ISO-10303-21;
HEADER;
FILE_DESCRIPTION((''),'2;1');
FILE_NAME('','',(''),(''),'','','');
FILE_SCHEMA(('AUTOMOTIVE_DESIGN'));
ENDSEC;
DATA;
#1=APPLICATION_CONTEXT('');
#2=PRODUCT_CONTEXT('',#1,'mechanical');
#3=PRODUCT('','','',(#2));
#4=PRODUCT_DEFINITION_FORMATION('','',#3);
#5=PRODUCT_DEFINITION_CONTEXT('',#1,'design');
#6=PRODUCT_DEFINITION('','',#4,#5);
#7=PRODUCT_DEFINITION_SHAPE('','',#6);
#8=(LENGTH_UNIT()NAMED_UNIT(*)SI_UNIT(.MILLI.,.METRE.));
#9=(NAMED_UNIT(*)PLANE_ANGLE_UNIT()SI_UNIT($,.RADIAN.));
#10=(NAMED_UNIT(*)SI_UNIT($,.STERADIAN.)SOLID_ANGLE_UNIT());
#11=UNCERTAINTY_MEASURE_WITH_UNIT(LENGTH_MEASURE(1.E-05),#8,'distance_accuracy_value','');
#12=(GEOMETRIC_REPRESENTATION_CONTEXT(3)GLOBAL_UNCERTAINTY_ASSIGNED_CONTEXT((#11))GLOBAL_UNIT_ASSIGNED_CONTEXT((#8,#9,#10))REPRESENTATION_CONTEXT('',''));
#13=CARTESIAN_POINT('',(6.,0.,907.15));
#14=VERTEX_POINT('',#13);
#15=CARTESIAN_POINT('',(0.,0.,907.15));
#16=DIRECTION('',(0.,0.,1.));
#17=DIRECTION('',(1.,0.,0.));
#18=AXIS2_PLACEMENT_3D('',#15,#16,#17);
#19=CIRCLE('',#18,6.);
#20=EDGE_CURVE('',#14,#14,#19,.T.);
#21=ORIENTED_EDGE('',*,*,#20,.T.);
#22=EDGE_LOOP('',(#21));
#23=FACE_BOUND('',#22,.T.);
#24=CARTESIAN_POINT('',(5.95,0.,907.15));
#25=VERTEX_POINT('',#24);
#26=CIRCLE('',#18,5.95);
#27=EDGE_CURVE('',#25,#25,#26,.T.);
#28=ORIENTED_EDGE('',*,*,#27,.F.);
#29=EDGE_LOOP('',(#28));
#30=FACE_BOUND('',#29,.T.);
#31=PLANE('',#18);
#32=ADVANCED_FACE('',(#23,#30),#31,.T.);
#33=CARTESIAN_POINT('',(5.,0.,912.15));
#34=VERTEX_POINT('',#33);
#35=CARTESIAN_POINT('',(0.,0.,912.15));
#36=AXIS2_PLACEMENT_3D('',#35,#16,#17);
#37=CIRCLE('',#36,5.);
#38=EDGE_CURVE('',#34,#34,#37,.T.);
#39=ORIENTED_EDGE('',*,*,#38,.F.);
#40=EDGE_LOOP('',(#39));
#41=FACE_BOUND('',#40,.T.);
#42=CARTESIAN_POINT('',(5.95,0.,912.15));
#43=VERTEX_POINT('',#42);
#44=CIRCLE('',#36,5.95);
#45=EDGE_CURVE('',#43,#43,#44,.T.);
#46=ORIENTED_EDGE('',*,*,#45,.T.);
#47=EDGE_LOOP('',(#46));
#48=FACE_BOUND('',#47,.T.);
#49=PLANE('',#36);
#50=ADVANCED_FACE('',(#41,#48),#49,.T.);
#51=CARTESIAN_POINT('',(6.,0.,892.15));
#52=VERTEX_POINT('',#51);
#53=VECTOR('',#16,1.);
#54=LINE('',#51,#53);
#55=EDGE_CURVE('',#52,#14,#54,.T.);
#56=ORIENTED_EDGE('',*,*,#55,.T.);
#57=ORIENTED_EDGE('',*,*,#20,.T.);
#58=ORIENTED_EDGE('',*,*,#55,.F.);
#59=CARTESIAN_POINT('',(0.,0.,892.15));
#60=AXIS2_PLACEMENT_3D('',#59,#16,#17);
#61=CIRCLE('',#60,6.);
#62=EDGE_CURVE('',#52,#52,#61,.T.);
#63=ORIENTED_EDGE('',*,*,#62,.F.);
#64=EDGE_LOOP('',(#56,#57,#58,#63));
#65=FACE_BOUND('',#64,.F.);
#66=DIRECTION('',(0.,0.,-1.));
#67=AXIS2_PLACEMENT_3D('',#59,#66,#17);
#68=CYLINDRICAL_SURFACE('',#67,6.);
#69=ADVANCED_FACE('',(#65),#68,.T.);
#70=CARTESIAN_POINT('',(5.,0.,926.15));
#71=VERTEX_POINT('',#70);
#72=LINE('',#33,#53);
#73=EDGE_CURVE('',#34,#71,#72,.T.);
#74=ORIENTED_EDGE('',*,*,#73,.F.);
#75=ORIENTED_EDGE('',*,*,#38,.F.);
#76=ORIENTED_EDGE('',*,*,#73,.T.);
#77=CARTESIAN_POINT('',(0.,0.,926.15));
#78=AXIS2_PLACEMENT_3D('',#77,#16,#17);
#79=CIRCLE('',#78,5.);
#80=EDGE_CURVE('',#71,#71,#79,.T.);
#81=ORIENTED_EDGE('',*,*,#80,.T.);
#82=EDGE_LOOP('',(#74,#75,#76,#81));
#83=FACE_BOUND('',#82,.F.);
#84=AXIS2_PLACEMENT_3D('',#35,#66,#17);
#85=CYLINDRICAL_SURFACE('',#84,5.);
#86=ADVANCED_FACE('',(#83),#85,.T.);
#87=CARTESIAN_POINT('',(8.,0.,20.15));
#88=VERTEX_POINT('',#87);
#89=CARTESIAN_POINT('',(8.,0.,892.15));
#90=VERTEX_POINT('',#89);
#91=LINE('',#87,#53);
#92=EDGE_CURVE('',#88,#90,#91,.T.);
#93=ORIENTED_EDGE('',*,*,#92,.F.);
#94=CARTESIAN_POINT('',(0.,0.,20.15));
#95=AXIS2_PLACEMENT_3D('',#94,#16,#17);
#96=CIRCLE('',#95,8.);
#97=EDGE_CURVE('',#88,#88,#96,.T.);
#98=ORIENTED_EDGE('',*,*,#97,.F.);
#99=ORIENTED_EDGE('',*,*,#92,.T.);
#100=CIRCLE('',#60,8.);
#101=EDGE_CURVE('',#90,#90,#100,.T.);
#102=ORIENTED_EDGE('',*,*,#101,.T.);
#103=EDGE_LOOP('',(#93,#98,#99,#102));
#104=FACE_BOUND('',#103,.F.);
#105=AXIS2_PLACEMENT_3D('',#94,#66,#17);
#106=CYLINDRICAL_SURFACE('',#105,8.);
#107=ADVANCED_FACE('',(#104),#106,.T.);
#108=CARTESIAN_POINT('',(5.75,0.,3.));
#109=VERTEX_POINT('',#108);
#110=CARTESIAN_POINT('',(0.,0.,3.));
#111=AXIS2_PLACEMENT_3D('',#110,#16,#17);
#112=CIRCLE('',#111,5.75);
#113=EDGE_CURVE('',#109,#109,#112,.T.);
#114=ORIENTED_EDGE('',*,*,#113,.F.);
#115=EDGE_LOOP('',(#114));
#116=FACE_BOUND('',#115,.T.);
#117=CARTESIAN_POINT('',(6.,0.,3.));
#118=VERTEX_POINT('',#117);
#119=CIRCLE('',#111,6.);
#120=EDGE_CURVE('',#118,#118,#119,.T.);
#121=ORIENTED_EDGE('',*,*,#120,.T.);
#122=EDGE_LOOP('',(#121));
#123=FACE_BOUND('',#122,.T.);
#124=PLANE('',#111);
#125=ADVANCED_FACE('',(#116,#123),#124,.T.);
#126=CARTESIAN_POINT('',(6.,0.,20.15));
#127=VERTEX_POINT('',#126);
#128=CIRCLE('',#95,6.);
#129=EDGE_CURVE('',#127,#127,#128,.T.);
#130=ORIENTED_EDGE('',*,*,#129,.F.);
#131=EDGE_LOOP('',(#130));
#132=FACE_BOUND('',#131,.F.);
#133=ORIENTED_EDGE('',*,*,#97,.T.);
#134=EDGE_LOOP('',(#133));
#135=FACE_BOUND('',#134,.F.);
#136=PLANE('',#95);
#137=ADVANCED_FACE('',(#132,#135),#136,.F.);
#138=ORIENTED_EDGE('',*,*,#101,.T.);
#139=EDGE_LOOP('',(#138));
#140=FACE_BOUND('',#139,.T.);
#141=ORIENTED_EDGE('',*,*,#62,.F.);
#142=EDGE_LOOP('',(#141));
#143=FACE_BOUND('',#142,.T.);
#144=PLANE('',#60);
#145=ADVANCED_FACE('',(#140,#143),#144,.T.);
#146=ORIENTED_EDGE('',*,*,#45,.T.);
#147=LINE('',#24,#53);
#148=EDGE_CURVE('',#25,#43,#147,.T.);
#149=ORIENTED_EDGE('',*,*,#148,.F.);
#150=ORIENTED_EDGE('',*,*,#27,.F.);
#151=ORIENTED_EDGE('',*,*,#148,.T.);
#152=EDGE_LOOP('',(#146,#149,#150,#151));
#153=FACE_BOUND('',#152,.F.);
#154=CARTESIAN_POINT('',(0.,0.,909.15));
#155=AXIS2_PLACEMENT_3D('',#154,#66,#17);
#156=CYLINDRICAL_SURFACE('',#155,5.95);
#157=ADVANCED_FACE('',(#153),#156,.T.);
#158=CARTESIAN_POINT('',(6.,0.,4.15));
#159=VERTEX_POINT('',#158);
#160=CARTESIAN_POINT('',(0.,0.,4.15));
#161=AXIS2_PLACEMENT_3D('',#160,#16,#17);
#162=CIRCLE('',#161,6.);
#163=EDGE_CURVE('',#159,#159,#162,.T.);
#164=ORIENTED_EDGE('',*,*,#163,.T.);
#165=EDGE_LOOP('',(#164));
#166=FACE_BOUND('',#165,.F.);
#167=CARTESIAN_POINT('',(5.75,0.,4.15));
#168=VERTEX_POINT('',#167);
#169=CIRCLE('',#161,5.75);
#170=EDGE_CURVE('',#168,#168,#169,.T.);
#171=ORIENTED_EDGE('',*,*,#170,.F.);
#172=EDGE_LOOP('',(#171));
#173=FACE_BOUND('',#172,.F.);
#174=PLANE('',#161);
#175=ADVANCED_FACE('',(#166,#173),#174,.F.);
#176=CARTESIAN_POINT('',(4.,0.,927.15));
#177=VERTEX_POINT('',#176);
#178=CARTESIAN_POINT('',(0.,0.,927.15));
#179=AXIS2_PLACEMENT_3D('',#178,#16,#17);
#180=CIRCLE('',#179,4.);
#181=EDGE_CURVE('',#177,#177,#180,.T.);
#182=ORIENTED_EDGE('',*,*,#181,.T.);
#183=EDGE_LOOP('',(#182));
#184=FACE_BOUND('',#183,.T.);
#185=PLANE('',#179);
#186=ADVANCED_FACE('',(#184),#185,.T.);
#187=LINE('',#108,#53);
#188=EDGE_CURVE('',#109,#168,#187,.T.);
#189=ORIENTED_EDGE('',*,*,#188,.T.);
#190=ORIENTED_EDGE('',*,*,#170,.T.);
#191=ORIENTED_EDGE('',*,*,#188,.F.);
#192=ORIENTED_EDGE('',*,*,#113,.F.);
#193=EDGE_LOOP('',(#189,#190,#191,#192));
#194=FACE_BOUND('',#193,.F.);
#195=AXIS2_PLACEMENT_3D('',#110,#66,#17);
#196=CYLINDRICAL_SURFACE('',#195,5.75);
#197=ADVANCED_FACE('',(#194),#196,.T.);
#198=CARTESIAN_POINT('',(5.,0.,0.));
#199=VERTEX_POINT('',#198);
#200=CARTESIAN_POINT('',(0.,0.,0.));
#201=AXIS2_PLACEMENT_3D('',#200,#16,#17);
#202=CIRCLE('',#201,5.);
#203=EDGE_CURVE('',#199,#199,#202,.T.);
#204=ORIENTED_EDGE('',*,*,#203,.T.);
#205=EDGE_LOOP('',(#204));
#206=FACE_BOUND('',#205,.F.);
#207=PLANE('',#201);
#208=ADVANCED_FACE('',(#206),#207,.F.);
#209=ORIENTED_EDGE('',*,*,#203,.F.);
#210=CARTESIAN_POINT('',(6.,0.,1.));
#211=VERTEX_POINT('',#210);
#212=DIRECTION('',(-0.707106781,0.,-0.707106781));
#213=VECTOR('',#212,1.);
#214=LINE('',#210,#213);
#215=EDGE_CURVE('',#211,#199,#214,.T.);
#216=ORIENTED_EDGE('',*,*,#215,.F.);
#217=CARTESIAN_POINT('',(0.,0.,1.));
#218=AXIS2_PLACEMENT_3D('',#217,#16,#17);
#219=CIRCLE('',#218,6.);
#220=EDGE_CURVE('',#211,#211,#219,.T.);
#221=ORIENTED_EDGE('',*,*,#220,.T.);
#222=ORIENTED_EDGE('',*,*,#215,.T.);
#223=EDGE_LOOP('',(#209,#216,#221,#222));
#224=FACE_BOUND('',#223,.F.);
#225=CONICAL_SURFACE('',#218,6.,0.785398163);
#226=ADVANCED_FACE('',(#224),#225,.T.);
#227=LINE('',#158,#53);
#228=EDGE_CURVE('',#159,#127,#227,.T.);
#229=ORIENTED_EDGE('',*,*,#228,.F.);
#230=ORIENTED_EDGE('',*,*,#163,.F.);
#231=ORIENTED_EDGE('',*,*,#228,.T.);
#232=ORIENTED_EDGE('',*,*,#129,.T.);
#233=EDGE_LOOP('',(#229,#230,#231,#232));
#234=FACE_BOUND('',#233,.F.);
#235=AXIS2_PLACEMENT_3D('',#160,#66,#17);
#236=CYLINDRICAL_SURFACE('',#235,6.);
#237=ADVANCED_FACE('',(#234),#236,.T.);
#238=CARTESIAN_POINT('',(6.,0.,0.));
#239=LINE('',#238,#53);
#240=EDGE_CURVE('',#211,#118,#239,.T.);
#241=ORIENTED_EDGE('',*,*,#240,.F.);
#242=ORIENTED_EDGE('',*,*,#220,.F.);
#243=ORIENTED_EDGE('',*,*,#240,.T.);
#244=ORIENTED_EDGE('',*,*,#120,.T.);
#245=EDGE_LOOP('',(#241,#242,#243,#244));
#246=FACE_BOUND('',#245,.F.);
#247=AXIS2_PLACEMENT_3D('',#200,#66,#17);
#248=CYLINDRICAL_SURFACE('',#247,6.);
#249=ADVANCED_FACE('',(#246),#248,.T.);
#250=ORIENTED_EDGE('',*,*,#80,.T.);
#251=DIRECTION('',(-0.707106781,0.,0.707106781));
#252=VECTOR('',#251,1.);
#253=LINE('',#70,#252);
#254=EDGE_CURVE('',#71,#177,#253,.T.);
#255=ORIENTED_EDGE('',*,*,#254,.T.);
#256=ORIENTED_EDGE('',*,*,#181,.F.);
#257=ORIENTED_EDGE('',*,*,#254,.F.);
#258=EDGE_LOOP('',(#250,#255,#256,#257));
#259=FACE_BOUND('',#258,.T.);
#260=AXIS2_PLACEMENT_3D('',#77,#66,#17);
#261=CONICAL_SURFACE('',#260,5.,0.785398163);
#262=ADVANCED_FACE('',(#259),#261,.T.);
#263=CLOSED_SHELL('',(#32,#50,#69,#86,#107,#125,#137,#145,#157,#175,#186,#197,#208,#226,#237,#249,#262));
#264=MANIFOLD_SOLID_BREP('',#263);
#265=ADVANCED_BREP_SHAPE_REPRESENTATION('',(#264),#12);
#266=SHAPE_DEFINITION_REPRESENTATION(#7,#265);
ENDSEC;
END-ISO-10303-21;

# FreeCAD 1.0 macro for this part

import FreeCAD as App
import Part
import Sketcher
from FreeCAD import Vector
Q = App.Units.Quantity


def edges_at(feature, points):
    """Names of the edges that pass closest to the given points."""
    edges = feature.Shape.Edges
    near = lambda p: min(range(len(edges)), key=lambda i: edges[i].distToShape(Part.Vertex(*p))[0])
    return sorted({f"Edge{near(p) + 1}" for p in points})

doc = App.newDocument("Part")
body = doc.addObject("PartDesign::Body", "Body")

# Sketch on XY plane
sketch1 = body.newObject("Sketcher::SketchObject", "Sketch")
sketch1.AttachmentSupport = (doc.getObject("XY_Plane"), [""])
sketch1.MapMode = "FlatFace"
sketch1.addGeometry(Part.Circle(Vector(0, 0, 0), Vector(0, 0, 1), 6), False)
sketch1.addConstraint(Sketcher.Constraint("Coincident", 0, 3, -1, 1))
sketch1.addConstraint(Sketcher.Constraint("Diameter", 0, Q("12 mm")))
pad1 = body.newObject("PartDesign::Pad", "Pad")
pad1.Profile = sketch1
pad1.Length = 3

# Sketch on XY plane
sketch2 = body.newObject("Sketcher::SketchObject", "Sketch001")
sketch2.AttachmentSupport = (doc.getObject("XY_Plane"), [""])
sketch2.MapMode = "FlatFace"
sketch2.AttachmentOffset = App.Placement(Vector(0, 0, 3), App.Rotation())
sketch2.addGeometry(Part.Circle(Vector(0, 0, 0), Vector(0, 0, 1), 6), False)
sketch2.addConstraint(Sketcher.Constraint("Coincident", 0, 3, -1, 1))
sketch2.addConstraint(Sketcher.Constraint("Diameter", 0, Q("11.5 mm")))
pad2 = body.newObject("PartDesign::Pad", "Pad001")
pad2.Profile = sketch2
pad2.Length = 1.15

# Sketch on XY plane
sketch3 = body.newObject("Sketcher::SketchObject", "Sketch002")
sketch3.AttachmentSupport = (doc.getObject("XY_Plane"), [""])
sketch3.MapMode = "FlatFace"
sketch3.AttachmentOffset = App.Placement(Vector(0, 0, 4.15), App.Rotation())
sketch3.addGeometry(Part.Circle(Vector(0, 0, 0), Vector(0, 0, 1), 6), False)
sketch3.addConstraint(Sketcher.Constraint("Coincident", 0, 3, -1, 1))
sketch3.addConstraint(Sketcher.Constraint("Diameter", 0, Q("12 mm")))
pad3 = body.newObject("PartDesign::Pad", "Pad002")
pad3.Profile = sketch3
pad3.Length = 16

# Sketch on XY plane
sketch4 = body.newObject("Sketcher::SketchObject", "Sketch003")
sketch4.AttachmentSupport = (doc.getObject("XY_Plane"), [""])
sketch4.MapMode = "FlatFace"
sketch4.AttachmentOffset = App.Placement(Vector(0, 0, 20.15), App.Rotation())
sketch4.addGeometry(Part.Circle(Vector(0, 0, 0), Vector(0, 0, 1), 8), False)
sketch4.addConstraint(Sketcher.Constraint("Coincident", 0, 3, -1, 1))
sketch4.addConstraint(Sketcher.Constraint("Diameter", 0, Q("16 mm")))
pad4 = body.newObject("PartDesign::Pad", "Pad003")
pad4.Profile = sketch4
pad4.Length = 872

# Sketch on XY plane
sketch5 = body.newObject("Sketcher::SketchObject", "Sketch004")
sketch5.AttachmentSupport = (doc.getObject("XY_Plane"), [""])
sketch5.MapMode = "FlatFace"
sketch5.AttachmentOffset = App.Placement(Vector(0, 0, 892.15), App.Rotation())
sketch5.addGeometry(Part.Circle(Vector(0, 0, 0), Vector(0, 0, 1), 6), False)
sketch5.addConstraint(Sketcher.Constraint("Coincident", 0, 3, -1, 1))
sketch5.addConstraint(Sketcher.Constraint("Diameter", 0, Q("12 mm")))
pad5 = body.newObject("PartDesign::Pad", "Pad004")
pad5.Profile = sketch5
pad5.Length = 15

# Sketch on XY plane
sketch6 = body.newObject("Sketcher::SketchObject", "Sketch005")
sketch6.AttachmentSupport = (doc.getObject("XY_Plane"), [""])
sketch6.MapMode = "FlatFace"
sketch6.AttachmentOffset = App.Placement(Vector(0, 0, 907.15), App.Rotation())
sketch6.addGeometry(Part.Circle(Vector(0, 0, 0), Vector(0, 0, 1), 6), False)
sketch6.addConstraint(Sketcher.Constraint("Coincident", 0, 3, -1, 1))
sketch6.addConstraint(Sketcher.Constraint("Diameter", 0, Q("11.9 mm")))
pad6 = body.newObject("PartDesign::Pad", "Pad005")
pad6.Profile = sketch6
pad6.Length = 2

# Sketch on XY plane
sketch7 = body.newObject("Sketcher::SketchObject", "Sketch006")
sketch7.AttachmentSupport = (doc.getObject("XY_Plane"), [""])
sketch7.MapMode = "FlatFace"
sketch7.AttachmentOffset = App.Placement(Vector(0, 0, 909.15), App.Rotation())
sketch7.addGeometry(Part.Circle(Vector(0, 0, 0), Vector(0, 0, 1), 6), False)
sketch7.addConstraint(Sketcher.Constraint("Coincident", 0, 3, -1, 1))
sketch7.addConstraint(Sketcher.Constraint("Diameter", 0, Q("11.9 mm")))
pad7 = body.newObject("PartDesign::Pad", "Pad006")
pad7.Profile = sketch7
pad7.Length = 3

# Sketch on XY plane
sketch8 = body.newObject("Sketcher::SketchObject", "Sketch007")
sketch8.AttachmentSupport = (doc.getObject("XY_Plane"), [""])
sketch8.MapMode = "FlatFace"
sketch8.AttachmentOffset = App.Placement(Vector(0, 0, 912.15), App.Rotation())
sketch8.addGeometry(Part.Circle(Vector(0, 0, 0), Vector(0, 0, 1), 5), False)
sketch8.addConstraint(Sketcher.Constraint("Coincident", 0, 3, -1, 1))
sketch8.addConstraint(Sketcher.Constraint("Diameter", 0, Q("10 mm")))
pad8 = body.newObject("PartDesign::Pad", "Pad007")
pad8.Profile = sketch8
pad8.Length = 15
doc.recompute()

chamfer = body.newObject("PartDesign::Chamfer", "Chamfer")
chamfer.Base = (pad8, edges_at(pad8, [(-5, 0, 927.15), (-6, 0, 0)]))
chamfer.Size = 1

doc.recompute()
